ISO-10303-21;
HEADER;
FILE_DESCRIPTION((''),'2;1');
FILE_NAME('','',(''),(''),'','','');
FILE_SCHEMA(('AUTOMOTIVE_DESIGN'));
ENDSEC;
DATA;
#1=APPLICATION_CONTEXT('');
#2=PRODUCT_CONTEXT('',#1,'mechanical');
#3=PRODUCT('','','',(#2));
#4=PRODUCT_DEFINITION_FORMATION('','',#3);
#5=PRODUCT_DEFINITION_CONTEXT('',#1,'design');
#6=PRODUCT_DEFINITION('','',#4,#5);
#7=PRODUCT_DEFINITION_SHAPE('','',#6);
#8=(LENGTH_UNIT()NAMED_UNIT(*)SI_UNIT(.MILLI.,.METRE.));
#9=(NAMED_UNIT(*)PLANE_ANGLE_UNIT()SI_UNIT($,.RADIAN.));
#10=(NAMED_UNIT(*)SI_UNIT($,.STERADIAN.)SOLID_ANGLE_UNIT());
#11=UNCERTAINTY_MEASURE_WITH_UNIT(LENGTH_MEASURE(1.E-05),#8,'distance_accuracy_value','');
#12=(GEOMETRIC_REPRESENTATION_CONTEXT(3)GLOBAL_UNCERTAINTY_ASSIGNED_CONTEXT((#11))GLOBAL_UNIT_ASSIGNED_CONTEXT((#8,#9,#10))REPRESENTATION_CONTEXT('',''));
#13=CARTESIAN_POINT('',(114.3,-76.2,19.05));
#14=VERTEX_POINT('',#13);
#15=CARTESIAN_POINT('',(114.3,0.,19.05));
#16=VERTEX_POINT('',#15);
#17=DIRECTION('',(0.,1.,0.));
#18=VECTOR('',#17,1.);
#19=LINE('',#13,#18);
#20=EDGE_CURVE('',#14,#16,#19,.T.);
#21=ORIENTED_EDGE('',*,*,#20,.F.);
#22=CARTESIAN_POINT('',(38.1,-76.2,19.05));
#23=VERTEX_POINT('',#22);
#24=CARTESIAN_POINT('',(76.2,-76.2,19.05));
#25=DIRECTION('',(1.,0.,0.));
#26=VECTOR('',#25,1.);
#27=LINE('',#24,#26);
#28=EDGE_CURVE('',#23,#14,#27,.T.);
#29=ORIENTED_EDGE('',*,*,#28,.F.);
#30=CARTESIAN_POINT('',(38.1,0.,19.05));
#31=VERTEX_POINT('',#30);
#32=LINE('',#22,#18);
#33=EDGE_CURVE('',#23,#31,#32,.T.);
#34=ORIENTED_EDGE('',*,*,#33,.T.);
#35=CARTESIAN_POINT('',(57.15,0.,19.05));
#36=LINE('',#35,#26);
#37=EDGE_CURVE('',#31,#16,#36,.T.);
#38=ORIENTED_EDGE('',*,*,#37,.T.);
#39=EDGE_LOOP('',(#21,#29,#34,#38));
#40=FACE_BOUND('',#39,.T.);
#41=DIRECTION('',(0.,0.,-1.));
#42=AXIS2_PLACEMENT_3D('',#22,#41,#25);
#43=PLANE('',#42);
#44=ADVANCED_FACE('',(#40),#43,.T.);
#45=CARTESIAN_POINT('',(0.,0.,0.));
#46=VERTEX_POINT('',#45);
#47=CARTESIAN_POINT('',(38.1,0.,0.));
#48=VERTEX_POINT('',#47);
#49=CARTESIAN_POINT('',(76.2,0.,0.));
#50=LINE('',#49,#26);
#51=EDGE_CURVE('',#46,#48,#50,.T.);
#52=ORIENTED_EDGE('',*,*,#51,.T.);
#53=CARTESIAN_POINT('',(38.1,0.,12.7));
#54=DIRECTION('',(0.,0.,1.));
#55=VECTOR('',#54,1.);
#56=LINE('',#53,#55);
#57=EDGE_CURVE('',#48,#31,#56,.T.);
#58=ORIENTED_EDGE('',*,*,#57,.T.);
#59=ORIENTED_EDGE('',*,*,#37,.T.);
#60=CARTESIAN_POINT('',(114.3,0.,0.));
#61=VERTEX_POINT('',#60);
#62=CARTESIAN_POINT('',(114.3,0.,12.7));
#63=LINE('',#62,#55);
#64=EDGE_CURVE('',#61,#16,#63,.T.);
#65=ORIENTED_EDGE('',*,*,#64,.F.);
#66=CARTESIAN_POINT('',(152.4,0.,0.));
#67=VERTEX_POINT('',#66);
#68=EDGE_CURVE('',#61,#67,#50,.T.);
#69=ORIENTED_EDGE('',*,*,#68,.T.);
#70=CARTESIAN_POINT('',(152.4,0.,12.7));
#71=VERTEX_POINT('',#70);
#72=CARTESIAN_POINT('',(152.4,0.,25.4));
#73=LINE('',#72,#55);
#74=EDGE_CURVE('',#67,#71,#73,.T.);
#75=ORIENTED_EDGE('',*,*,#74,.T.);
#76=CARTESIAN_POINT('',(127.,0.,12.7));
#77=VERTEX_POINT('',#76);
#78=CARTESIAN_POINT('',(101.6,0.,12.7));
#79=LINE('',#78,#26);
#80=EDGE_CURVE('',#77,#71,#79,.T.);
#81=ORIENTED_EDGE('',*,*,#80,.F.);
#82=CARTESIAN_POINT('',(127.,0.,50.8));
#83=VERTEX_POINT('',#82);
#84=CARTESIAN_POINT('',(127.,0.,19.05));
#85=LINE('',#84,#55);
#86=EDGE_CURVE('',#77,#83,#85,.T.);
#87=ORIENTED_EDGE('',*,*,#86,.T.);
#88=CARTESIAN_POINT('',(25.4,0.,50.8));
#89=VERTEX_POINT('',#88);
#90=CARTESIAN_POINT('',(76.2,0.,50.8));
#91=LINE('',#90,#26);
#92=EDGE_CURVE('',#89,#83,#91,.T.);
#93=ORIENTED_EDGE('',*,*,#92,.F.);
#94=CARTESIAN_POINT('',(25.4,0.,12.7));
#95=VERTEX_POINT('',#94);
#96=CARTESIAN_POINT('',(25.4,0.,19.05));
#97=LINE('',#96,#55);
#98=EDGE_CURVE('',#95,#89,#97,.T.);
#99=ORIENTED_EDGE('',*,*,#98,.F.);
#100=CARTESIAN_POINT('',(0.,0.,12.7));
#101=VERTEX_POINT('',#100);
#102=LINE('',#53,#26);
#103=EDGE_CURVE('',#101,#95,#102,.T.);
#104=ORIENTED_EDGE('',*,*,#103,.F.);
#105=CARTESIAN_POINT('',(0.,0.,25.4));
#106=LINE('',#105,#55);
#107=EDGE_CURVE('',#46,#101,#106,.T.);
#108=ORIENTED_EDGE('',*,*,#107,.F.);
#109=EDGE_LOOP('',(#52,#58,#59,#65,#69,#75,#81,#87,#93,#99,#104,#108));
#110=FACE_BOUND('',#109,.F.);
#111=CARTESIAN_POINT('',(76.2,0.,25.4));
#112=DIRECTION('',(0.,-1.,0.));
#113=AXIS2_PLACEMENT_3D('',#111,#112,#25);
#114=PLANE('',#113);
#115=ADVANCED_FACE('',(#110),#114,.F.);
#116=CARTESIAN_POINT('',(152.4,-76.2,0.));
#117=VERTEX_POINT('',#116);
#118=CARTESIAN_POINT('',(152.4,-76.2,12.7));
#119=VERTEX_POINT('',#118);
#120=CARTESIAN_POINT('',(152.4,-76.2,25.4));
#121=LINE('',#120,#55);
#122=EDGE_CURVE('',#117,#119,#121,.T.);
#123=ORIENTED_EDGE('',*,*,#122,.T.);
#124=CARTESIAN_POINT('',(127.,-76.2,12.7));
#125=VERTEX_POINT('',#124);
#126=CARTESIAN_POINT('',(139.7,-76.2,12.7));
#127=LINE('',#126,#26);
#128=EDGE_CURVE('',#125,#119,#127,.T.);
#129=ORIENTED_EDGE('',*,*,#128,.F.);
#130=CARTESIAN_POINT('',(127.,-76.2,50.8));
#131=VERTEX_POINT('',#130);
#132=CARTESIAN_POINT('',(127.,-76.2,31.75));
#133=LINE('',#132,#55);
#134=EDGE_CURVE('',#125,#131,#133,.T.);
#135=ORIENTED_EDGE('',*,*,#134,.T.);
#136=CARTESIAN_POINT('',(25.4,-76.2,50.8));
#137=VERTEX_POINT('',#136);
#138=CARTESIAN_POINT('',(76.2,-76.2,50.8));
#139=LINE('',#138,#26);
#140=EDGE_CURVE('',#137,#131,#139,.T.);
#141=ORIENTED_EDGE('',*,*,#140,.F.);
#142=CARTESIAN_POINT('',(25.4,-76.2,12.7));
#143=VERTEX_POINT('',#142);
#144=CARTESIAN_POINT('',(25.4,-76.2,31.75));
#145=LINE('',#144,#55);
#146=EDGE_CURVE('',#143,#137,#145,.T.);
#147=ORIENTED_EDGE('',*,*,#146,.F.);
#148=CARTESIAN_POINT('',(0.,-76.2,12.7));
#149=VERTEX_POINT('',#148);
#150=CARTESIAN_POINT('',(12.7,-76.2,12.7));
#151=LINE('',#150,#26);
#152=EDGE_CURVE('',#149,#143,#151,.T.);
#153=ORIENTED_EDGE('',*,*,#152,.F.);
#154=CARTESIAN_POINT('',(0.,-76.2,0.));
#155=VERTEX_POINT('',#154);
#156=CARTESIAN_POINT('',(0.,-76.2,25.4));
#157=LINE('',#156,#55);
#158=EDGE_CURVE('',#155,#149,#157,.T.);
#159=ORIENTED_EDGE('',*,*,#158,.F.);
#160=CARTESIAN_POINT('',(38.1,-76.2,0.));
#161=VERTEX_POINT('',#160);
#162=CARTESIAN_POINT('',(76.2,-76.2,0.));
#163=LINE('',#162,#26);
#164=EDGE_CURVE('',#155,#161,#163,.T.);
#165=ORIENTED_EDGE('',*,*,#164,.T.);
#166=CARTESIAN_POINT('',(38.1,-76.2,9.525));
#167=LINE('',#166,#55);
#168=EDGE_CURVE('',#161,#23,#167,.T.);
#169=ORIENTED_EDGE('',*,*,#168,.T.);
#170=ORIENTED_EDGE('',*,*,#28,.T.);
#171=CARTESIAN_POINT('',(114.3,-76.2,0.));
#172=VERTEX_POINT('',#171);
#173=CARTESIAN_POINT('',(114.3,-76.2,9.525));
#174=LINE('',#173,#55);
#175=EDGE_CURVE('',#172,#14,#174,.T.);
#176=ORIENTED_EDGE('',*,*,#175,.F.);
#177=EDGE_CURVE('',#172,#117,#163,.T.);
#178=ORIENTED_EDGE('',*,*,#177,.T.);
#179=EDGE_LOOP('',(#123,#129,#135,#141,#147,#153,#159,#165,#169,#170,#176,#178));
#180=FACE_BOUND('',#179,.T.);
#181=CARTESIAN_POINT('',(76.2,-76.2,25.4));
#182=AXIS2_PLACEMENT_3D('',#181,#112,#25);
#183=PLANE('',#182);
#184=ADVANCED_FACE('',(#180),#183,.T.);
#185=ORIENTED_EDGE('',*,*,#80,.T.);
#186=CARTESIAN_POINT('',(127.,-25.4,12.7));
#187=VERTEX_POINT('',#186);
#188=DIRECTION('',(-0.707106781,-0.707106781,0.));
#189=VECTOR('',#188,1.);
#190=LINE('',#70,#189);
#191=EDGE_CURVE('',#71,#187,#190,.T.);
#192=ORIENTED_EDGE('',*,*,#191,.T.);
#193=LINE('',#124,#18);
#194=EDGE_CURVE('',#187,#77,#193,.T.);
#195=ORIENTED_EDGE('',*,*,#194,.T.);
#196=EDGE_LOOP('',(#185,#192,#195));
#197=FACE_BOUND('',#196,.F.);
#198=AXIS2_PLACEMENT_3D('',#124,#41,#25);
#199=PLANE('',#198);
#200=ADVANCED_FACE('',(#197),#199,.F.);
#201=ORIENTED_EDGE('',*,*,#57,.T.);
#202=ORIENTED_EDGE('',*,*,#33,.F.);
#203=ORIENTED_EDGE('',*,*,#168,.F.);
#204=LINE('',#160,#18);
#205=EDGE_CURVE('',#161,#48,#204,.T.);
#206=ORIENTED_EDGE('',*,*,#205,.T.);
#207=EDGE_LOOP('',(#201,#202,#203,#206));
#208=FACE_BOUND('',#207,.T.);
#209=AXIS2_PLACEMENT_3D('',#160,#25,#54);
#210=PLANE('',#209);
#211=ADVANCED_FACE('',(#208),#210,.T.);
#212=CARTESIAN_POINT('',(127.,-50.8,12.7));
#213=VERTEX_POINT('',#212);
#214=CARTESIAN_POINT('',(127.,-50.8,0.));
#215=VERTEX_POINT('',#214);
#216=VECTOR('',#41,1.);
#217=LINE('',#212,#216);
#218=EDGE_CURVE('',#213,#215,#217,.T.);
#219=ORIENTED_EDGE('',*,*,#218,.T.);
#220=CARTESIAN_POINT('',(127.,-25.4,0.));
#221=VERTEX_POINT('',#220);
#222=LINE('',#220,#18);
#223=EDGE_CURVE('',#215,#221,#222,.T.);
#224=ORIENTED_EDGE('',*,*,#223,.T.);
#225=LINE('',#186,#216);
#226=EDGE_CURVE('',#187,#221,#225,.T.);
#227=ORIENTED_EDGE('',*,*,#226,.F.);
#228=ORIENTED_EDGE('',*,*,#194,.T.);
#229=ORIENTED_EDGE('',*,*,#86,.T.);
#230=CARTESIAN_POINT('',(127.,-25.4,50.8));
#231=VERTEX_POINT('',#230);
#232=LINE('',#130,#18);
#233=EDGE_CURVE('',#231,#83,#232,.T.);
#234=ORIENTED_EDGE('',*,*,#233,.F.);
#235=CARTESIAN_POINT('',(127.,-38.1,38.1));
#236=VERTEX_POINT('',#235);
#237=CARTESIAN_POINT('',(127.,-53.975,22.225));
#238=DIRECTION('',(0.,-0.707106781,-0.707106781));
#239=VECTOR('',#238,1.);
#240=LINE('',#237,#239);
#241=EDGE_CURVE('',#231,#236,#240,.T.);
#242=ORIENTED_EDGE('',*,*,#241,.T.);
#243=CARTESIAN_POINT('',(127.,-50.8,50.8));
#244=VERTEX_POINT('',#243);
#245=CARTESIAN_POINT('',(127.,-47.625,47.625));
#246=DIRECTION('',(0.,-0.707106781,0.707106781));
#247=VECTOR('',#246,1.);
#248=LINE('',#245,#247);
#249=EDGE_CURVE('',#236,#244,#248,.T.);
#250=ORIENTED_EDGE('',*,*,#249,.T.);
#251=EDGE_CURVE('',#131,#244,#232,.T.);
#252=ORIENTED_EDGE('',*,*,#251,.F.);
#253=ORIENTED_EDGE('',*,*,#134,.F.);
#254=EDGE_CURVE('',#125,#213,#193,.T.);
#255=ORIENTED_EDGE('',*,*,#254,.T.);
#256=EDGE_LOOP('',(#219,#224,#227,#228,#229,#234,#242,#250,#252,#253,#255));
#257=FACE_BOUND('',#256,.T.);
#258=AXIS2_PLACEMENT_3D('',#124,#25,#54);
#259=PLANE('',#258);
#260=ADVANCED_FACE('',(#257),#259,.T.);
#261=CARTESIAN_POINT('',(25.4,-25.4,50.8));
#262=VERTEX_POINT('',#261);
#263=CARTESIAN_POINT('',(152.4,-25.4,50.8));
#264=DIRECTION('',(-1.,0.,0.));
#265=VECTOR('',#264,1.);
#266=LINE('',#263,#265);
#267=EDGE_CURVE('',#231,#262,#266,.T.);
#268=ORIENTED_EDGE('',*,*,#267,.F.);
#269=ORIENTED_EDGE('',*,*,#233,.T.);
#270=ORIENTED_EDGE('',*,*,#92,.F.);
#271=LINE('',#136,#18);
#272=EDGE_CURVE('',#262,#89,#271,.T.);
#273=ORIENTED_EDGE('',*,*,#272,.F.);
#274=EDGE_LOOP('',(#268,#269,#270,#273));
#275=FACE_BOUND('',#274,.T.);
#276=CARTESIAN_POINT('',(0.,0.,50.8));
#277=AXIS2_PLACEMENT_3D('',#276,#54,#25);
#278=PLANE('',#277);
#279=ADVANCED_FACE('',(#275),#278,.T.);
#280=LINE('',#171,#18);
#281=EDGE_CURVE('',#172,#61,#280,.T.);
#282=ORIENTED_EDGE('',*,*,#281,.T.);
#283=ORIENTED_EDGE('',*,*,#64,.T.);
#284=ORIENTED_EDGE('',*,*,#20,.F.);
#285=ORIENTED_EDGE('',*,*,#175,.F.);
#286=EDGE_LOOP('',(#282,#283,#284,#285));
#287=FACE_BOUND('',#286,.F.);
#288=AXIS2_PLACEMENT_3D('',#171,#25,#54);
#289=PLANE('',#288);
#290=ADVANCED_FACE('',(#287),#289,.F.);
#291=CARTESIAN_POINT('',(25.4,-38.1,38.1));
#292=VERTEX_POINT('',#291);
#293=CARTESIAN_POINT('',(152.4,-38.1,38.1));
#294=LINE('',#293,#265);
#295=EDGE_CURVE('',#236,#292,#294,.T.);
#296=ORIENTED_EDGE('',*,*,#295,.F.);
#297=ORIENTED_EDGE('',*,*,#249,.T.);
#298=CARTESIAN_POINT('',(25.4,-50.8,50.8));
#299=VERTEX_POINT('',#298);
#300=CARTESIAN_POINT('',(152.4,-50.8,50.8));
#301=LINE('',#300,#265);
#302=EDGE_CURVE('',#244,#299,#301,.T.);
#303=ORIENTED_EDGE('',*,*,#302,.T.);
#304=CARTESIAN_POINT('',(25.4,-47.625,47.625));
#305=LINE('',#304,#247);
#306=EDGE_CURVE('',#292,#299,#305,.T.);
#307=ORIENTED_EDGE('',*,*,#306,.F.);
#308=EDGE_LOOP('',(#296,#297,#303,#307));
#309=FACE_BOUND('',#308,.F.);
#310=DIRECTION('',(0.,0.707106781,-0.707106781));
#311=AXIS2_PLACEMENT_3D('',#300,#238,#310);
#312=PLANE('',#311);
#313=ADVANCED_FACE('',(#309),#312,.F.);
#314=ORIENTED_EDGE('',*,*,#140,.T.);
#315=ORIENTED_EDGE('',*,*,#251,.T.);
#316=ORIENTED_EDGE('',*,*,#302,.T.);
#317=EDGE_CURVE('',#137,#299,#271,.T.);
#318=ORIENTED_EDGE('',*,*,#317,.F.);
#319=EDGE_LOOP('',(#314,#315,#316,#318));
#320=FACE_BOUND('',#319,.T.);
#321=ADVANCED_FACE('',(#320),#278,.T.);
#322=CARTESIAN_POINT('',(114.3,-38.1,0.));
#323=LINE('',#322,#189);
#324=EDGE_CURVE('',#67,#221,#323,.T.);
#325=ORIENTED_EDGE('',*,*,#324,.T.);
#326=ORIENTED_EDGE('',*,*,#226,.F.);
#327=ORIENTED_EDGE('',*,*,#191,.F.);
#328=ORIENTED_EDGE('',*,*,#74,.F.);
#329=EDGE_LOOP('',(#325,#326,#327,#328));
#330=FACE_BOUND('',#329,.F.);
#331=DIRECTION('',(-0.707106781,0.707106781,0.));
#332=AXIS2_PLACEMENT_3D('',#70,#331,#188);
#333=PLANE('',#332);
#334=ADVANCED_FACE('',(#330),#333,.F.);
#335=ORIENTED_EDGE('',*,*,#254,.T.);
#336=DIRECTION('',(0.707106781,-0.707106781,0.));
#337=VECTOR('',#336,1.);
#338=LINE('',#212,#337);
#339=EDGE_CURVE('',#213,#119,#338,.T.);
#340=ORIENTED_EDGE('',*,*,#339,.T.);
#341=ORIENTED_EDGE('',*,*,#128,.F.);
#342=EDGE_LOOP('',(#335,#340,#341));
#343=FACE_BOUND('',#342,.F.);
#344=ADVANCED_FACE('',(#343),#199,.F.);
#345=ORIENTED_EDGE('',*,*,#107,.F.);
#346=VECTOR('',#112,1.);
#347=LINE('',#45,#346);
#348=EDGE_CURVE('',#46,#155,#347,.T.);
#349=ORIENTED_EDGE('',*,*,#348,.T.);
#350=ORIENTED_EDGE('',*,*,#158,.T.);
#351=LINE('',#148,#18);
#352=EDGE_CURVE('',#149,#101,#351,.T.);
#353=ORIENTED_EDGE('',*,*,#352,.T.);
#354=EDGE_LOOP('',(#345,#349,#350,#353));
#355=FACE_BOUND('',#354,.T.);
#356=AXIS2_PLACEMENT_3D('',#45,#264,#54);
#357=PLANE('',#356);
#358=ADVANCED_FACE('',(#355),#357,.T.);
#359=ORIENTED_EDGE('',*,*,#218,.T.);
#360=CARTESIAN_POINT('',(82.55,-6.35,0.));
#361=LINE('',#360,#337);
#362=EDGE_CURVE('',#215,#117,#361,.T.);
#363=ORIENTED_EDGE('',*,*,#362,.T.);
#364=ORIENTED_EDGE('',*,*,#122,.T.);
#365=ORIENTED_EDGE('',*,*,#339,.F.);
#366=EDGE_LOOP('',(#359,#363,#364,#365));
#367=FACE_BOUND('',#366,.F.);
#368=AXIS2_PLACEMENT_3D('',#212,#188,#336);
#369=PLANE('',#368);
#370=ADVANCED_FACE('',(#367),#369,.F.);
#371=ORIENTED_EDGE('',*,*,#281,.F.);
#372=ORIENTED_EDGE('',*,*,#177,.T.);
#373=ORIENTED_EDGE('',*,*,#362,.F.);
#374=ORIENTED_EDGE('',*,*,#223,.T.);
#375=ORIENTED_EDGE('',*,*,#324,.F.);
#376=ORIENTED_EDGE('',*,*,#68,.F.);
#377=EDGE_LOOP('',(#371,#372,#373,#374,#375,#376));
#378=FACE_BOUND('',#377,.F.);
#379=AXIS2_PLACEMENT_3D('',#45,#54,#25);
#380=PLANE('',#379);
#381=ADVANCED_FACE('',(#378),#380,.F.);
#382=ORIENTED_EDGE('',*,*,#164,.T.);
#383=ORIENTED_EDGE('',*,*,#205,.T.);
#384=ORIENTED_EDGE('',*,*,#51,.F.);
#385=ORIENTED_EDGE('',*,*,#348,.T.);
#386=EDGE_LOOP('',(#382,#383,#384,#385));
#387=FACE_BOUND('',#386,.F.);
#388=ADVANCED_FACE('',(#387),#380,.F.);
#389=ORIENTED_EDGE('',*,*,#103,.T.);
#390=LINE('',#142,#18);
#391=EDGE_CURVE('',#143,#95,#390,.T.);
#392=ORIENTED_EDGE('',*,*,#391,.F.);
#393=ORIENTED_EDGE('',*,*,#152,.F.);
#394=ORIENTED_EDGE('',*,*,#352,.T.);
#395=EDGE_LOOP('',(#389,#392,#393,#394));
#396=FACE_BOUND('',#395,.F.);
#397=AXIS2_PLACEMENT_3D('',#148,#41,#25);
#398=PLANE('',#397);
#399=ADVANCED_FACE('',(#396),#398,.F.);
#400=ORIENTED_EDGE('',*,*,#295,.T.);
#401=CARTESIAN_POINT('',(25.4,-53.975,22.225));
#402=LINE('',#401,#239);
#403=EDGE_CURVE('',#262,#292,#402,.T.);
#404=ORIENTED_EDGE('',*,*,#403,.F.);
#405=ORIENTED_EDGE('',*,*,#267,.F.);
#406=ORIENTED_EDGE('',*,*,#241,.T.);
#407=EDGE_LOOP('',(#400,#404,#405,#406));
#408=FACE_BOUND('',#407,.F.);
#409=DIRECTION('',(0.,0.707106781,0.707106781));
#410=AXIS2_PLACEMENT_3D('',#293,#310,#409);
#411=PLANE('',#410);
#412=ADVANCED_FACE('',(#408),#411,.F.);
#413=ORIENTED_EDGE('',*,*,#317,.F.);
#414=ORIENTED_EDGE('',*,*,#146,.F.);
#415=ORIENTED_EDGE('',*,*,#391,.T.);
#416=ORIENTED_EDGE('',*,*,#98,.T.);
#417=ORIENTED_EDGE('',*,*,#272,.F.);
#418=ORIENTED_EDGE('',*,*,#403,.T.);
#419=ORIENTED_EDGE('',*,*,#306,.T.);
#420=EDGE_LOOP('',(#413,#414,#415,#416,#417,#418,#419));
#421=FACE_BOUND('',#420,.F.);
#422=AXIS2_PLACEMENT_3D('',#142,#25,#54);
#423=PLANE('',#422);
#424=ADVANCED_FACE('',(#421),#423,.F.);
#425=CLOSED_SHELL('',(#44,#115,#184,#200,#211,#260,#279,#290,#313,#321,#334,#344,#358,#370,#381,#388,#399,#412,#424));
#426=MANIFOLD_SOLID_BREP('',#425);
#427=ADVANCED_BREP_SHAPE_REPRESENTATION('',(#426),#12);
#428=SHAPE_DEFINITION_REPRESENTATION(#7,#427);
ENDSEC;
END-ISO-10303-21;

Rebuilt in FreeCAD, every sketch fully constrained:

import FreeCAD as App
import Part
import Sketcher
from FreeCAD import Vector
Q = App.Units.Quantity


def add_polygon(sketch, points):
    """Adds a closed chain of lines whose ends are joined by coincident constraints."""
    first, n = sketch.GeometryCount, len(points)
    for a, b in zip(points, points[1:] + points[:1]):
        sketch.addGeometry(Part.LineSegment(App.Vector(*a, 0), App.Vector(*b, 0)), False)
    for i in range(n):
        sketch.addConstraint(Sketcher.Constraint("Coincident", first + i, 2, first + (i + 1) % n, 1))

doc = App.newDocument("Part")
body = doc.addObject("PartDesign::Body", "Body")

sketch1 = doc.addObject("Sketcher::SketchObject", "Sketch")
body.addObject(sketch1)
sketch1.AttachmentSupport = (doc.XZ_Plane, [""])
sketch1.MapMode = "FlatFace"
add_polygon(sketch1, [(0, 51), (0, 0), (152, 0), (152, 51)])
sketch1.addConstraint([
    Sketcher.Constraint("Vertical", 0),
    Sketcher.Constraint("Horizontal", 1),
    Sketcher.Constraint("Vertical", 2),
    Sketcher.Constraint("Horizontal", 3),
    Sketcher.Constraint("Coincident", 0, 2, -1, 1),
    Sketcher.Constraint("DistanceX", 1, 1, 1, 2, Q("6 in")),
    Sketcher.Constraint("DistanceY", 0, 2, 0, 1, Q("2 in")),
])
pad1 = doc.addObject("PartDesign::Pad", "Pad")
body.addObject(pad1)
pad1.Profile = sketch1
pad1.Length = Q("3 in")

sketch2 = doc.addObject("Sketcher::SketchObject", "Sketch001")
body.addObject(sketch2)
sketch2.AttachmentSupport = (doc.YZ_Plane, [""])
sketch2.MapMode = "FlatFace"
sketch2.AttachmentOffset = App.Placement(Vector(0, 0, 6 * 25.4), App.Rotation())
add_polygon(sketch2, [(-51, 51), (-38, 38), (-25, 51)])
sketch2.addConstraint([
    Sketcher.Constraint("Horizontal", 2),
    Sketcher.Constraint("Perpendicular", 0, 1),
    Sketcher.Constraint("Equal", 0, 1),
    Sketcher.Constraint("DistanceX", 2, 2, 2, 1, Q("1 in")),
    Sketcher.Constraint("DistanceX", 1, 2, -1, 1, Q("1 in")),
    Sketcher.Constraint("DistanceY", -1, 1, 1, 2, Q("2 in")),
])
pocket1 = doc.addObject("PartDesign::Pocket", "Pocket")
body.addObject(pocket1)
pocket1.Profile = sketch2
pocket1.Length = Q("8 in")

sketch3 = doc.addObject("Sketcher::SketchObject", "Sketch002")
body.addObject(sketch3)
sketch3.AttachmentSupport = (doc.XZ_Plane, [""])
sketch3.MapMode = "FlatFace"
sketch3.AttachmentOffset = App.Placement(Vector(0, 0, 3 * 25.4), App.Rotation())
add_polygon(sketch3, [(0, 51), (0, 13), (25, 13), (25, 51)])
sketch3.addConstraint([
    Sketcher.Constraint("Vertical", 0),
    Sketcher.Constraint("Horizontal", 1),
    Sketcher.Constraint("Vertical", 2),
    Sketcher.Constraint("Horizontal", 3),
    Sketcher.Constraint("PointOnObject", 0, 2, -2),
    Sketcher.Constraint("DistanceX", 1, 1, 1, 2, Q("1 in")),
    Sketcher.Constraint("DistanceY", 0, 2, 0, 1, Q("1.5 in")),
    Sketcher.Constraint("DistanceY", -1, 1, 2, 2, Q("2 in")),
])
pocket2 = doc.addObject("PartDesign::Pocket", "Pocket001")
body.addObject(pocket2)
pocket2.Profile = sketch3
pocket2.Length = Q("4 in")

sketch4 = doc.addObject("Sketcher::SketchObject", "Sketch003")
body.addObject(sketch4)
sketch4.AttachmentSupport = (doc.XZ_Plane, [""])
sketch4.MapMode = "FlatFace"
sketch4.AttachmentOffset = App.Placement(Vector(0, 0, 3 * 25.4), App.Rotation())
add_polygon(sketch4, [(127, 51), (127, 13), (152, 13), (152, 51)])
sketch4.addConstraint([
    Sketcher.Constraint("Vertical", 0),
    Sketcher.Constraint("Horizontal", 1),
    Sketcher.Constraint("Vertical", 2),
    Sketcher.Constraint("Horizontal", 3),
    Sketcher.Constraint("DistanceX", 1, 1, 1, 2, Q("1 in")),
    Sketcher.Constraint("DistanceY", 0, 2, 0, 1, Q("1.5 in")),
    Sketcher.Constraint("DistanceX", -1, 1, 0, 2, Q("5 in")),
    Sketcher.Constraint("DistanceY", -1, 1, 2, 2, Q("2 in")),
])
pocket3 = doc.addObject("PartDesign::Pocket", "Pocket002")
body.addObject(pocket3)
pocket3.Profile = sketch4
pocket3.Length = Q("4 in")

sketch5 = doc.addObject("Sketcher::SketchObject", "Sketch004")
body.addObject(sketch5)
sketch5.AttachmentSupport = (doc.XY_Plane, [""])
sketch5.MapMode = "FlatFace"
sketch5.AttachmentOffset = App.Placement(Vector(0, 0, 0.5 * 25.4), App.Rotation())
add_polygon(sketch5, [(152, -76), (152, 0), (127, -25), (127, -51)])
sketch5.addConstraint([
    Sketcher.Constraint("Vertical", 0),
    Sketcher.Constraint("Vertical", 2),
    Sketcher.Constraint("PointOnObject", 0, 2, -1),
    Sketcher.Constraint("Perpendicular", 1, 3),
    Sketcher.Constraint("Equal", 1, 3),
    Sketcher.Constraint("DistanceY", 0, 1, 0, 2, Q("3 in")),
    Sketcher.Constraint("DistanceY", 2, 2, 2, 1, Q("1 in")),
    Sketcher.Constraint("DistanceX", -1, 1, 0, 2, Q("6 in")),
])
pocket4 = doc.addObject("PartDesign::Pocket", "Pocket003")
body.addObject(pocket4)
pocket4.Profile = sketch5
pocket4.Length = Q("1 in")

sketch6 = doc.addObject("Sketcher::SketchObject", "Sketch005")
body.addObject(sketch6)
sketch6.AttachmentSupport = (doc.XZ_Plane, [""])
sketch6.MapMode = "FlatFace"
sketch6.AttachmentOffset = App.Placement(Vector(0, 0, 3 * 25.4), App.Rotation())
add_polygon(sketch6, [(38, 19), (38, 0), (114, 0), (114, 19)])
sketch6.addConstraint([
    Sketcher.Constraint("Vertical", 0),
    Sketcher.Constraint("Horizontal", 1),
    Sketcher.Constraint("Vertical", 2),
    Sketcher.Constraint("Horizontal", 3),
    Sketcher.Constraint("PointOnObject", 0, 2, -1),
    Sketcher.Constraint("DistanceX", 1, 1, 1, 2, Q("3 in")),
    Sketcher.Constraint("DistanceY", 0, 2, 0, 1, Q("0.75 in")),
    Sketcher.Constraint("DistanceX", -1, 1, 0, 2, Q("1.5 in")),
])
pocket5 = doc.addObject("PartDesign::Pocket", "Pocket004")
body.addObject(pocket5)
pocket5.Profile = sketch6
pocket5.Length = Q("5 in")

doc.recompute()
